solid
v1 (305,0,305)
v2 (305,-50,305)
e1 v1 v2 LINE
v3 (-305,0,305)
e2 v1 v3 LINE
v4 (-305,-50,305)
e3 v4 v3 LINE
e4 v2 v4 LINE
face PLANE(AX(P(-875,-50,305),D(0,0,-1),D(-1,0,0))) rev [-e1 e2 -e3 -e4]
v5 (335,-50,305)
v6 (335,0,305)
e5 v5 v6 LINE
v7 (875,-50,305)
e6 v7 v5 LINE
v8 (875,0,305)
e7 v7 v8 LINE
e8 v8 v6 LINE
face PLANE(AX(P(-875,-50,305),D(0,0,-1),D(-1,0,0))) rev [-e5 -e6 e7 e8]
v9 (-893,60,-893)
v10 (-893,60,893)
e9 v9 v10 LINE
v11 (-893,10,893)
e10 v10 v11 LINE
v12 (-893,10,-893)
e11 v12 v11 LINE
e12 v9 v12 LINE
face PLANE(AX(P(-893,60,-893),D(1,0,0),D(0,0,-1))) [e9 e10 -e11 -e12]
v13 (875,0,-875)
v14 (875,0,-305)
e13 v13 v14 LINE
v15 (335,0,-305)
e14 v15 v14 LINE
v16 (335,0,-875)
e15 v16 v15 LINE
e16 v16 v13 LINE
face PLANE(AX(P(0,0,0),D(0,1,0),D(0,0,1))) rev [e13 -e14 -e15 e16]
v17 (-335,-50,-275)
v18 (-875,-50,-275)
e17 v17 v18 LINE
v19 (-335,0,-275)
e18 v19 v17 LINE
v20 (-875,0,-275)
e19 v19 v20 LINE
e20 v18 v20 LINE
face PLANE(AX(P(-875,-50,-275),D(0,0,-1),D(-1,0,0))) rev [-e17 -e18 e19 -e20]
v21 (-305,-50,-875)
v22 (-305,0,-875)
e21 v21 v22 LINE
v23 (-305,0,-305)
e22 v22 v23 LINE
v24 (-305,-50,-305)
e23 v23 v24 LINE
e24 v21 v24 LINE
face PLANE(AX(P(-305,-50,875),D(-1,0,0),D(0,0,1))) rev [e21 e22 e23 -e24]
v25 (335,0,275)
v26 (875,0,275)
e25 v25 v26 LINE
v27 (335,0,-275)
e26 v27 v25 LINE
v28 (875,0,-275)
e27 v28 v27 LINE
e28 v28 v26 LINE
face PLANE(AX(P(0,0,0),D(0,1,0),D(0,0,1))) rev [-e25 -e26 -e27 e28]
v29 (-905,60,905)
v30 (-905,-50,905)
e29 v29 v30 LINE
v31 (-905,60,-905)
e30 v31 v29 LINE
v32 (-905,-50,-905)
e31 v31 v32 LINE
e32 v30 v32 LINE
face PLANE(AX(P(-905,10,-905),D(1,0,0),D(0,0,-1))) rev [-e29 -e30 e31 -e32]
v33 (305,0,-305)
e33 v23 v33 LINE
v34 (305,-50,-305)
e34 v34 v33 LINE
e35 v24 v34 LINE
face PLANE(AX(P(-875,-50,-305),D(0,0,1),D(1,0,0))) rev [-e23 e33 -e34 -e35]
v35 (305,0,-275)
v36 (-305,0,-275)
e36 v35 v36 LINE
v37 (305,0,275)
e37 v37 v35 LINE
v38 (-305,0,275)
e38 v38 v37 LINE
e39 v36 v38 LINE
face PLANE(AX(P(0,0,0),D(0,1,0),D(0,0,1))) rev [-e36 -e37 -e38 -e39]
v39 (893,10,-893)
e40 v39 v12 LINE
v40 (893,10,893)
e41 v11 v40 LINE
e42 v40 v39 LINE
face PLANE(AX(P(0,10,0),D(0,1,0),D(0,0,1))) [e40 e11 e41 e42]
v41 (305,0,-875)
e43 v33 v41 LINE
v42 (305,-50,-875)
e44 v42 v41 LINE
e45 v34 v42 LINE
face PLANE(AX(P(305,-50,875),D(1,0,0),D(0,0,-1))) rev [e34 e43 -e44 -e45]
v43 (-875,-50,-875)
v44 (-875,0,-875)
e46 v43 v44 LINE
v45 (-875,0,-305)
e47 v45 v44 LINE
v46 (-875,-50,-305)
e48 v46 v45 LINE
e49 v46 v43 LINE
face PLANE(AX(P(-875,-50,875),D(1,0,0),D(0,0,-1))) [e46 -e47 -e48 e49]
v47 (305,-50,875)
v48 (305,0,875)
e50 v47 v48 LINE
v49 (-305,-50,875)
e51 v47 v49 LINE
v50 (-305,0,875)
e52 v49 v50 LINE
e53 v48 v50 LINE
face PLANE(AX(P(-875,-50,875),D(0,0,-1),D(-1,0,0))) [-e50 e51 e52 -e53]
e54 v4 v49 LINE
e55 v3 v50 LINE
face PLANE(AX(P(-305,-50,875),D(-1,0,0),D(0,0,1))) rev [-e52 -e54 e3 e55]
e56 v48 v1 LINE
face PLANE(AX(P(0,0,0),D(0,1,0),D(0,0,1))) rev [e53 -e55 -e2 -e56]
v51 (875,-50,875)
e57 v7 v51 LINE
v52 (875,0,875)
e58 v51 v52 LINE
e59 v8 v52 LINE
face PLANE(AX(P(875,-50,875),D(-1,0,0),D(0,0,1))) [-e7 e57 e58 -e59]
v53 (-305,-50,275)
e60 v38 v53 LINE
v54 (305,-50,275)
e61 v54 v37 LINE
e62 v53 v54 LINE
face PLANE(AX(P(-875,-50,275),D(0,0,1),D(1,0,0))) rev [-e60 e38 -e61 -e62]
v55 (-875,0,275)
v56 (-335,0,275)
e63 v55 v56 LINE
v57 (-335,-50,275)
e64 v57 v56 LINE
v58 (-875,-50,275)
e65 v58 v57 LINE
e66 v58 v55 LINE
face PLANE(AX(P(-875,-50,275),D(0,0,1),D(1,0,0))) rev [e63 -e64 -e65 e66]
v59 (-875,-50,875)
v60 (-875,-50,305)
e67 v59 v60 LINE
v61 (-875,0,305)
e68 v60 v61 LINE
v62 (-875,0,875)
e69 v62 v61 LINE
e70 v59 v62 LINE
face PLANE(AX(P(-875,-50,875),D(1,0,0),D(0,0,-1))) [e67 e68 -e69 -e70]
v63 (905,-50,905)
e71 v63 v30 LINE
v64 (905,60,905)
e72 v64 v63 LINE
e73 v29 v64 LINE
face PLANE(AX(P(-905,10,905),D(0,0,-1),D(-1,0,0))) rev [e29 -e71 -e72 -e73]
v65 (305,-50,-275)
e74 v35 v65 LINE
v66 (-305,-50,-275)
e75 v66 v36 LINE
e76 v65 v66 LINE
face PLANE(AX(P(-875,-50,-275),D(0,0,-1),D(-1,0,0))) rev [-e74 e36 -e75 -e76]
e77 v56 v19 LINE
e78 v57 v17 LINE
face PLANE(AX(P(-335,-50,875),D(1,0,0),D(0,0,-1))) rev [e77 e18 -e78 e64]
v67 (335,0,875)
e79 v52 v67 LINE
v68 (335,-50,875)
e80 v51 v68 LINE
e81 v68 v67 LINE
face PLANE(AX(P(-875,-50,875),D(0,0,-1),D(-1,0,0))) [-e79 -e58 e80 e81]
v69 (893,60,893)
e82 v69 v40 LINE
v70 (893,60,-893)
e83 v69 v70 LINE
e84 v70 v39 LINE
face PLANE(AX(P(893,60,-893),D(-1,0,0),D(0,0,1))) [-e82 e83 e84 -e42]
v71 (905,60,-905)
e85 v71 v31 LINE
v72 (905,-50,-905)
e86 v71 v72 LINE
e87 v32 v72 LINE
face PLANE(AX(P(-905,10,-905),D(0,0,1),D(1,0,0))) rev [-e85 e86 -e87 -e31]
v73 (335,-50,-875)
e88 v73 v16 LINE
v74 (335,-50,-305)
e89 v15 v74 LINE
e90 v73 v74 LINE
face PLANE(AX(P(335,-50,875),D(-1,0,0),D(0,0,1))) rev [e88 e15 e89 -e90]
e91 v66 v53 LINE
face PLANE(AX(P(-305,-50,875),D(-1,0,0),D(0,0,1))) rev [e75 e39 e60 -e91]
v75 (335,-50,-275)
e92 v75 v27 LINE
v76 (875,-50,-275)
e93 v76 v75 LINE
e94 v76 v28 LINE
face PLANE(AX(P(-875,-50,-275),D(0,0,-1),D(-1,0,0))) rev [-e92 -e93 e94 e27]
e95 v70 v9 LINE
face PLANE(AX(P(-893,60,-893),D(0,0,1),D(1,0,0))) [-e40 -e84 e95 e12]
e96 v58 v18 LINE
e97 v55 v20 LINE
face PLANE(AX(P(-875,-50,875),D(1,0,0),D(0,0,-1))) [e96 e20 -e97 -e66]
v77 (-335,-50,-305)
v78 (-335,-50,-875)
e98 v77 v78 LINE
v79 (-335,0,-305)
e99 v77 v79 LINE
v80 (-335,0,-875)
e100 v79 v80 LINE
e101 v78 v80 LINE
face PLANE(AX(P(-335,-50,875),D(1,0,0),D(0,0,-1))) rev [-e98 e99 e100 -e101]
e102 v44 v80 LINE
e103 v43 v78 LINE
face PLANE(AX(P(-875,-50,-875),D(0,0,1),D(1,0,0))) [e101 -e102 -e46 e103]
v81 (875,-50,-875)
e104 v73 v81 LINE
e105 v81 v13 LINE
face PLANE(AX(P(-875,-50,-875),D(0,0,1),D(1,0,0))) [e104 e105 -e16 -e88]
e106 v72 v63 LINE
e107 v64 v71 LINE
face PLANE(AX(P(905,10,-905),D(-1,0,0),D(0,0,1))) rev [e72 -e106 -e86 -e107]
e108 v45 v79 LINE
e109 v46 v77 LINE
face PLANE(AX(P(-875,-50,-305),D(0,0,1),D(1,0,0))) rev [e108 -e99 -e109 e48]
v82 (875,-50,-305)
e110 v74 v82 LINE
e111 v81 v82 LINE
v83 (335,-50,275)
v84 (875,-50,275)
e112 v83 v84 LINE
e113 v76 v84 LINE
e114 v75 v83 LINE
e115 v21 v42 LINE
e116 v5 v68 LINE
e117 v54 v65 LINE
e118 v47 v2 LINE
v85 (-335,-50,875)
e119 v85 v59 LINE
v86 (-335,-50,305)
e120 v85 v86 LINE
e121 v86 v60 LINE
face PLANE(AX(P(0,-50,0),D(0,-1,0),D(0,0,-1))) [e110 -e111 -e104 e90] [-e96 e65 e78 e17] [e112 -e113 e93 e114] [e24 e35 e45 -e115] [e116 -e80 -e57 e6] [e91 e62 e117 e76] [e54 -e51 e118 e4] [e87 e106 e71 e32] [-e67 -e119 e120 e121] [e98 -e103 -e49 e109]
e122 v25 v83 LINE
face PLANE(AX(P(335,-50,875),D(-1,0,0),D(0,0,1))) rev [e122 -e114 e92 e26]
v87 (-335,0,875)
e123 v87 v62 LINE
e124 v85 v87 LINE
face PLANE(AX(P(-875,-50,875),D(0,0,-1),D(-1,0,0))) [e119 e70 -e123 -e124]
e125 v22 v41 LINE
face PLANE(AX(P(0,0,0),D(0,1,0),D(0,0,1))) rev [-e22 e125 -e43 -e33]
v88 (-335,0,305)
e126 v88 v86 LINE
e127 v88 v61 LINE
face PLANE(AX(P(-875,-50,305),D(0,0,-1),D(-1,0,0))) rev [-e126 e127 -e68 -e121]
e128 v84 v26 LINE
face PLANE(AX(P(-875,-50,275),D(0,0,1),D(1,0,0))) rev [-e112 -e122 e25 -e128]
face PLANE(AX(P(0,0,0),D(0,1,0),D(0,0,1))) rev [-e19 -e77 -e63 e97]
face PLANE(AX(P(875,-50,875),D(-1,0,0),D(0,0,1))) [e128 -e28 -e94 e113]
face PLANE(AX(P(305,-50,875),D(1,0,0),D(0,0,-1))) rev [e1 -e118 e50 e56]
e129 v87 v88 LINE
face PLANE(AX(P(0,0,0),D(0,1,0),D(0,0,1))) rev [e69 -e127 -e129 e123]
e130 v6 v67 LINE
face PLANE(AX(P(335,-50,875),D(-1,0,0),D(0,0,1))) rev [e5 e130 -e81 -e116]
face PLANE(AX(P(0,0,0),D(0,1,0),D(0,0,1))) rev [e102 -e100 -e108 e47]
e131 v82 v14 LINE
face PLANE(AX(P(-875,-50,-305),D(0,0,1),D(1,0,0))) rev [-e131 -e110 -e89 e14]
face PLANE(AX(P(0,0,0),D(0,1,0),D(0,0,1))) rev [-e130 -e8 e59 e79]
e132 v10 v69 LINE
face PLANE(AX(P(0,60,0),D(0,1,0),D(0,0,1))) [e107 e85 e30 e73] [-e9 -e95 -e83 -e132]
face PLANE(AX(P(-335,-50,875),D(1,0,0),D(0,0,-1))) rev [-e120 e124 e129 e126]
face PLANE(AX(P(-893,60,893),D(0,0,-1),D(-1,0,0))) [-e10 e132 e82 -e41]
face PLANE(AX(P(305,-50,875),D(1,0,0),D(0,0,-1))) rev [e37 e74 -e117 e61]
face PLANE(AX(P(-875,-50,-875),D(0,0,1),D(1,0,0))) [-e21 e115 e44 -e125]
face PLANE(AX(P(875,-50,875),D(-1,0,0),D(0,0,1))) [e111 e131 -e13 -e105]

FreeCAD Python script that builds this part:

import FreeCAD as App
import Part
import Sketcher
from FreeCAD import Vector
Q = App.Units.Quantity

doc = App.newDocument("Part")
body = doc.addObject("PartDesign::Body", "Body")

# Sketch on XZ plane
sketch1 = body.newObject("Sketcher::SketchObject", "Sketch")
sketch1.AttachmentSupport = (doc.getObject("XZ_Plane"), [""])
sketch1.MapMode = "FlatFace"
sketch1.addGeometry([
    Part.LineSegment(Vector(-905, -905, 0), Vector(-905, 905, 0)),
    Part.LineSegment(Vector(-905, 905, 0), Vector(905, 905, 0)),
    Part.LineSegment(Vector(905, 905, 0), Vector(905, -905, 0)),
    Part.LineSegment(Vector(905, -905, 0), Vector(-905, -905, 0)),
], False)
sketch1.addConstraint([
    Sketcher.Constraint("Coincident", 0, 2, 1, 1),
    Sketcher.Constraint("Coincident", 1, 2, 2, 1),
    Sketcher.Constraint("Coincident", 2, 2, 3, 1),
    Sketcher.Constraint("Coincident", 3, 2, 0, 1),
    Sketcher.Constraint("Vertical", 0),
    Sketcher.Constraint("Horizontal", 1),
    Sketcher.Constraint("Vertical", 2),
    Sketcher.Constraint("Horizontal", 3),
    Sketcher.Constraint("Symmetric", 0, 2, 2, 2, -1, 1),
    Sketcher.Constraint("Equal", 3, 0),
    Sketcher.Constraint("DistanceX", 1, 1, 1, 2, Q("1810 mm")),
])
pad1 = body.newObject("PartDesign::Pad", "Pad")
pad1.Profile = sketch1
pad1.Length = 10
pad1.Reversed = True

# Sketch on XZ plane
sketch2 = body.newObject("Sketcher::SketchObject", "Sketch001")
sketch2.AttachmentSupport = (doc.getObject("XZ_Plane"), [""])
sketch2.MapMode = "FlatFace"
sketch2.addGeometry([
    Part.LineSegment(Vector(905, -905, 0), Vector(905, 905, 0)),  # 0
    Part.LineSegment(Vector(905, 905, 0), Vector(-905, 905, 0)),  # 1
    Part.LineSegment(Vector(-905, 905, 0), Vector(-905, -905, 0)),  # 2
    Part.LineSegment(Vector(-905, -905, 0), Vector(905, -905, 0)),  # 3
    Part.LineSegment(Vector(-875, 875, 0), Vector(875, 875, 0)),  # 4
    Part.LineSegment(Vector(875, 875, 0), Vector(875, -875, 0)),  # 5
    Part.LineSegment(Vector(875, -875, 0), Vector(-875, -875, 0)),  # 6
    Part.LineSegment(Vector(-875, -875, 0), Vector(-875, 875, 0)),  # 7
], False)
sketch2.addConstraint([
    Sketcher.Constraint("Coincident", 0, 2, 1, 1),
    Sketcher.Constraint("Coincident", 1, 2, 2, 1),
    Sketcher.Constraint("Coincident", 2, 2, 3, 1),
    Sketcher.Constraint("Coincident", 3, 2, 0, 1),
    Sketcher.Constraint("Coincident", 4, 2, 5, 1),
    Sketcher.Constraint("Coincident", 5, 2, 6, 1),
    Sketcher.Constraint("Coincident", 6, 2, 7, 1),
    Sketcher.Constraint("Coincident", 7, 2, 4, 1),
    Sketcher.Constraint("Vertical", 0),
    Sketcher.Constraint("Horizontal", 1),
    Sketcher.Constraint("Vertical", 2),
    Sketcher.Constraint("Horizontal", 3),
    Sketcher.Constraint("Horizontal", 4),
    Sketcher.Constraint("Vertical", 5),
    Sketcher.Constraint("Horizontal", 6),
    Sketcher.Constraint("Vertical", 7),
    Sketcher.Constraint("Symmetric", 0, 2, 2, 2, -1, 1),
    Sketcher.Constraint("Symmetric", 4, 2, 6, 2, -1, 1),
    Sketcher.Constraint("Equal", 3, 0),
    Sketcher.Constraint("Equal", 6, 5),
    Sketcher.Constraint("DistanceX", 1, 2, 1, 1, Q("1810 mm")),
    Sketcher.Constraint("DistanceX", 4, 1, 4, 2, Q("1750 mm")),
])
pad2 = body.newObject("PartDesign::Pad", "Pad001")
pad2.Profile = sketch2
pad2.Length = 50

# Sketch on XZ plane
sketch3 = body.newObject("Sketcher::SketchObject", "Sketch002")
sketch3.AttachmentSupport = (doc.getObject("XZ_Plane"), [""])
sketch3.MapMode = "FlatFace"
sketch3.addGeometry([
    Part.LineSegment(Vector(875, 275, 0), Vector(875, 305, 0)),  # 0
    Part.LineSegment(Vector(875, 305, 0), Vector(-875, 305, 0)),  # 1
    Part.LineSegment(Vector(-875, 305, 0), Vector(-875, 275, 0)),  # 2
    Part.LineSegment(Vector(-875, 275, 0), Vector(875, 275, 0)),  # 3
    Part.LineSegment(Vector(875, -305, 0), Vector(875, -275, 0)),  # 4
    Part.LineSegment(Vector(875, -275, 0), Vector(-875, -275, 0)),  # 5
    Part.LineSegment(Vector(-875, -275, 0), Vector(-875, -305, 0)),  # 6
    Part.LineSegment(Vector(-875, -305, 0), Vector(875, -305, 0)),  # 7
], False)
sketch3.addConstraint([
    Sketcher.Constraint("Coincident", 0, 2, 1, 1),
    Sketcher.Constraint("Coincident", 1, 2, 2, 1),
    Sketcher.Constraint("Coincident", 2, 2, 3, 1),
    Sketcher.Constraint("Coincident", 3, 2, 0, 1),
    Sketcher.Constraint("Coincident", 4, 2, 5, 1),
    Sketcher.Constraint("Coincident", 5, 2, 6, 1),
    Sketcher.Constraint("Coincident", 6, 2, 7, 1),
    Sketcher.Constraint("Coincident", 7, 2, 4, 1),
    Sketcher.Constraint("Vertical", 0),
    Sketcher.Constraint("Horizontal", 1),
    Sketcher.Constraint("Vertical", 2),
    Sketcher.Constraint("Horizontal", 3),
    Sketcher.Constraint("Vertical", 4),
    Sketcher.Constraint("Horizontal", 5),
    Sketcher.Constraint("Vertical", 6),
    Sketcher.Constraint("Horizontal", 7),
    Sketcher.Constraint("Symmetric", 2, 2, 4, 2, -1, 1),
    Sketcher.Constraint("Symmetric", 0, 2, 6, 2, -1, 1),
    Sketcher.Constraint("Vertical", 3, 2, 4, 2),
    Sketcher.Constraint("DistanceX", 1, 2, 1, 1, Q("1750 mm")),
    Sketcher.Constraint("DistanceY", 0, 1, 0, 2, Q("30 mm")),
    Sketcher.Constraint("DistanceY", -1, 1, 0, 2, Q("305 mm")),
])
pad3 = body.newObject("PartDesign::Pad", "Pad002")
pad3.Profile = sketch3
pad3.Length = 50

# Sketch on XZ plane
sketch4 = body.newObject("Sketcher::SketchObject", "Sketch003")
sketch4.AttachmentSupport = (doc.getObject("XZ_Plane"), [""])
sketch4.MapMode = "FlatFace"
sketch4.addGeometry([
    Part.LineSegment(Vector(-305, -875, 0), Vector(-305, 875, 0)),  # 0
    Part.LineSegment(Vector(-305, 875, 0), Vector(-335, 875, 0)),  # 1
    Part.LineSegment(Vector(-335, 875, 0), Vector(-335, -875, 0)),  # 2
    Part.LineSegment(Vector(-335, -875, 0), Vector(-305, -875, 0)),  # 3
    Part.LineSegment(Vector(335, -875, 0), Vector(335, 875, 0)),  # 4
    Part.LineSegment(Vector(335, 875, 0), Vector(305, 875, 0)),  # 5
    Part.LineSegment(Vector(305, 875, 0), Vector(305, -875, 0)),  # 6
    Part.LineSegment(Vector(305, -875, 0), Vector(335, -875, 0)),  # 7
], False)
sketch4.addConstraint([
    Sketcher.Constraint("Coincident", 0, 2, 1, 1),
    Sketcher.Constraint("Coincident", 1, 2, 2, 1),
    Sketcher.Constraint("Coincident", 2, 2, 3, 1),
    Sketcher.Constraint("Coincident", 3, 2, 0, 1),
    Sketcher.Constraint("Coincident", 4, 2, 5, 1),
    Sketcher.Constraint("Coincident", 5, 2, 6, 1),
    Sketcher.Constraint("Coincident", 6, 2, 7, 1),
    Sketcher.Constraint("Coincident", 7, 2, 4, 1),
    Sketcher.Constraint("Vertical", 0),
    Sketcher.Constraint("Horizontal", 1),
    Sketcher.Constraint("Vertical", 2),
    Sketcher.Constraint("Horizontal", 3),
    Sketcher.Constraint("Vertical", 4),
    Sketcher.Constraint("Horizontal", 5),
    Sketcher.Constraint("Vertical", 6),
    Sketcher.Constraint("Horizontal", 7),
    Sketcher.Constraint("Symmetric", 2, 2, 4, 2, -1, 1),
    Sketcher.Constraint("Symmetric", 0, 2, 6, 2, -1, 1),
    Sketcher.Constraint("Horizontal", 1, 2, 4, 2),
    Sketcher.Constraint("DistanceX", 1, 2, 1, 1, Q("30 mm")),
    Sketcher.Constraint("DistanceY", 0, 1, 0, 2, Q("1750 mm")),
    Sketcher.Constraint("DistanceX", 0, 2, -1, 1, Q("305 mm")),
])
pad4 = body.newObject("PartDesign::Pad", "Pad003")
pad4.Profile = sketch4
pad4.Length = 50

# Sketch on XZ plane
sketch5 = body.newObject("Sketcher::SketchObject", "Sketch004")
sketch5.AttachmentSupport = (doc.getObject("XZ_Plane"), [""])
sketch5.MapMode = "FlatFace"
sketch5.AttachmentOffset = App.Placement(Vector(0, 0, -10), App.Rotation())
sketch5.addGeometry([
    Part.LineSegment(Vector(-905, -905, 0), Vector(-905, 905, 0)),  # 0
    Part.LineSegment(Vector(-905, 905, 0), Vector(905, 905, 0)),  # 1
    Part.LineSegment(Vector(905, 905, 0), Vector(905, -905, 0)),  # 2
    Part.LineSegment(Vector(905, -905, 0), Vector(-905, -905, 0)),  # 3
    Part.LineSegment(Vector(893, 893, 0), Vector(-893, 893, 0)),  # 4
    Part.LineSegment(Vector(-893, 893, 0), Vector(-893, -893, 0)),  # 5
    Part.LineSegment(Vector(-893, -893, 0), Vector(893, -893, 0)),  # 6
    Part.LineSegment(Vector(893, -893, 0), Vector(893, 893, 0)),  # 7
], False)
sketch5.addConstraint([
    Sketcher.Constraint("Coincident", 0, 2, 1, 1),
    Sketcher.Constraint("Coincident", 1, 2, 2, 1),
    Sketcher.Constraint("Coincident", 2, 2, 3, 1),
    Sketcher.Constraint("Coincident", 3, 2, 0, 1),
    Sketcher.Constraint("Coincident", 4, 2, 5, 1),
    Sketcher.Constraint("Coincident", 5, 2, 6, 1),
    Sketcher.Constraint("Coincident", 6, 2, 7, 1),
    Sketcher.Constraint("Coincident", 7, 2, 4, 1),
    Sketcher.Constraint("Vertical", 0),
    Sketcher.Constraint("Horizontal", 1),
    Sketcher.Constraint("Vertical", 2),
    Sketcher.Constraint("Horizontal", 3),
    Sketcher.Constraint("Horizontal", 4),
    Sketcher.Constraint("Vertical", 5),
    Sketcher.Constraint("Horizontal", 6),
    Sketcher.Constraint("Vertical", 7),
    Sketcher.Constraint("Symmetric", 0, 2, 2, 2, -1, 1),
    Sketcher.Constraint("Symmetric", 4, 2, 6, 2, -1, 1),
    Sketcher.Constraint("Equal", 3, 0),
    Sketcher.Constraint("Equal", 6, 5),
    Sketcher.Constraint("DistanceX", 1, 1, 1, 2, Q("1810 mm")),
    Sketcher.Constraint("DistanceX", 4, 2, 4, 1, Q("1786 mm")),
])
pad5 = body.newObject("PartDesign::Pad", "Pad004")
pad5.Profile = sketch5
pad5.Length = 50
pad5.Reversed = True

doc.recompute()
